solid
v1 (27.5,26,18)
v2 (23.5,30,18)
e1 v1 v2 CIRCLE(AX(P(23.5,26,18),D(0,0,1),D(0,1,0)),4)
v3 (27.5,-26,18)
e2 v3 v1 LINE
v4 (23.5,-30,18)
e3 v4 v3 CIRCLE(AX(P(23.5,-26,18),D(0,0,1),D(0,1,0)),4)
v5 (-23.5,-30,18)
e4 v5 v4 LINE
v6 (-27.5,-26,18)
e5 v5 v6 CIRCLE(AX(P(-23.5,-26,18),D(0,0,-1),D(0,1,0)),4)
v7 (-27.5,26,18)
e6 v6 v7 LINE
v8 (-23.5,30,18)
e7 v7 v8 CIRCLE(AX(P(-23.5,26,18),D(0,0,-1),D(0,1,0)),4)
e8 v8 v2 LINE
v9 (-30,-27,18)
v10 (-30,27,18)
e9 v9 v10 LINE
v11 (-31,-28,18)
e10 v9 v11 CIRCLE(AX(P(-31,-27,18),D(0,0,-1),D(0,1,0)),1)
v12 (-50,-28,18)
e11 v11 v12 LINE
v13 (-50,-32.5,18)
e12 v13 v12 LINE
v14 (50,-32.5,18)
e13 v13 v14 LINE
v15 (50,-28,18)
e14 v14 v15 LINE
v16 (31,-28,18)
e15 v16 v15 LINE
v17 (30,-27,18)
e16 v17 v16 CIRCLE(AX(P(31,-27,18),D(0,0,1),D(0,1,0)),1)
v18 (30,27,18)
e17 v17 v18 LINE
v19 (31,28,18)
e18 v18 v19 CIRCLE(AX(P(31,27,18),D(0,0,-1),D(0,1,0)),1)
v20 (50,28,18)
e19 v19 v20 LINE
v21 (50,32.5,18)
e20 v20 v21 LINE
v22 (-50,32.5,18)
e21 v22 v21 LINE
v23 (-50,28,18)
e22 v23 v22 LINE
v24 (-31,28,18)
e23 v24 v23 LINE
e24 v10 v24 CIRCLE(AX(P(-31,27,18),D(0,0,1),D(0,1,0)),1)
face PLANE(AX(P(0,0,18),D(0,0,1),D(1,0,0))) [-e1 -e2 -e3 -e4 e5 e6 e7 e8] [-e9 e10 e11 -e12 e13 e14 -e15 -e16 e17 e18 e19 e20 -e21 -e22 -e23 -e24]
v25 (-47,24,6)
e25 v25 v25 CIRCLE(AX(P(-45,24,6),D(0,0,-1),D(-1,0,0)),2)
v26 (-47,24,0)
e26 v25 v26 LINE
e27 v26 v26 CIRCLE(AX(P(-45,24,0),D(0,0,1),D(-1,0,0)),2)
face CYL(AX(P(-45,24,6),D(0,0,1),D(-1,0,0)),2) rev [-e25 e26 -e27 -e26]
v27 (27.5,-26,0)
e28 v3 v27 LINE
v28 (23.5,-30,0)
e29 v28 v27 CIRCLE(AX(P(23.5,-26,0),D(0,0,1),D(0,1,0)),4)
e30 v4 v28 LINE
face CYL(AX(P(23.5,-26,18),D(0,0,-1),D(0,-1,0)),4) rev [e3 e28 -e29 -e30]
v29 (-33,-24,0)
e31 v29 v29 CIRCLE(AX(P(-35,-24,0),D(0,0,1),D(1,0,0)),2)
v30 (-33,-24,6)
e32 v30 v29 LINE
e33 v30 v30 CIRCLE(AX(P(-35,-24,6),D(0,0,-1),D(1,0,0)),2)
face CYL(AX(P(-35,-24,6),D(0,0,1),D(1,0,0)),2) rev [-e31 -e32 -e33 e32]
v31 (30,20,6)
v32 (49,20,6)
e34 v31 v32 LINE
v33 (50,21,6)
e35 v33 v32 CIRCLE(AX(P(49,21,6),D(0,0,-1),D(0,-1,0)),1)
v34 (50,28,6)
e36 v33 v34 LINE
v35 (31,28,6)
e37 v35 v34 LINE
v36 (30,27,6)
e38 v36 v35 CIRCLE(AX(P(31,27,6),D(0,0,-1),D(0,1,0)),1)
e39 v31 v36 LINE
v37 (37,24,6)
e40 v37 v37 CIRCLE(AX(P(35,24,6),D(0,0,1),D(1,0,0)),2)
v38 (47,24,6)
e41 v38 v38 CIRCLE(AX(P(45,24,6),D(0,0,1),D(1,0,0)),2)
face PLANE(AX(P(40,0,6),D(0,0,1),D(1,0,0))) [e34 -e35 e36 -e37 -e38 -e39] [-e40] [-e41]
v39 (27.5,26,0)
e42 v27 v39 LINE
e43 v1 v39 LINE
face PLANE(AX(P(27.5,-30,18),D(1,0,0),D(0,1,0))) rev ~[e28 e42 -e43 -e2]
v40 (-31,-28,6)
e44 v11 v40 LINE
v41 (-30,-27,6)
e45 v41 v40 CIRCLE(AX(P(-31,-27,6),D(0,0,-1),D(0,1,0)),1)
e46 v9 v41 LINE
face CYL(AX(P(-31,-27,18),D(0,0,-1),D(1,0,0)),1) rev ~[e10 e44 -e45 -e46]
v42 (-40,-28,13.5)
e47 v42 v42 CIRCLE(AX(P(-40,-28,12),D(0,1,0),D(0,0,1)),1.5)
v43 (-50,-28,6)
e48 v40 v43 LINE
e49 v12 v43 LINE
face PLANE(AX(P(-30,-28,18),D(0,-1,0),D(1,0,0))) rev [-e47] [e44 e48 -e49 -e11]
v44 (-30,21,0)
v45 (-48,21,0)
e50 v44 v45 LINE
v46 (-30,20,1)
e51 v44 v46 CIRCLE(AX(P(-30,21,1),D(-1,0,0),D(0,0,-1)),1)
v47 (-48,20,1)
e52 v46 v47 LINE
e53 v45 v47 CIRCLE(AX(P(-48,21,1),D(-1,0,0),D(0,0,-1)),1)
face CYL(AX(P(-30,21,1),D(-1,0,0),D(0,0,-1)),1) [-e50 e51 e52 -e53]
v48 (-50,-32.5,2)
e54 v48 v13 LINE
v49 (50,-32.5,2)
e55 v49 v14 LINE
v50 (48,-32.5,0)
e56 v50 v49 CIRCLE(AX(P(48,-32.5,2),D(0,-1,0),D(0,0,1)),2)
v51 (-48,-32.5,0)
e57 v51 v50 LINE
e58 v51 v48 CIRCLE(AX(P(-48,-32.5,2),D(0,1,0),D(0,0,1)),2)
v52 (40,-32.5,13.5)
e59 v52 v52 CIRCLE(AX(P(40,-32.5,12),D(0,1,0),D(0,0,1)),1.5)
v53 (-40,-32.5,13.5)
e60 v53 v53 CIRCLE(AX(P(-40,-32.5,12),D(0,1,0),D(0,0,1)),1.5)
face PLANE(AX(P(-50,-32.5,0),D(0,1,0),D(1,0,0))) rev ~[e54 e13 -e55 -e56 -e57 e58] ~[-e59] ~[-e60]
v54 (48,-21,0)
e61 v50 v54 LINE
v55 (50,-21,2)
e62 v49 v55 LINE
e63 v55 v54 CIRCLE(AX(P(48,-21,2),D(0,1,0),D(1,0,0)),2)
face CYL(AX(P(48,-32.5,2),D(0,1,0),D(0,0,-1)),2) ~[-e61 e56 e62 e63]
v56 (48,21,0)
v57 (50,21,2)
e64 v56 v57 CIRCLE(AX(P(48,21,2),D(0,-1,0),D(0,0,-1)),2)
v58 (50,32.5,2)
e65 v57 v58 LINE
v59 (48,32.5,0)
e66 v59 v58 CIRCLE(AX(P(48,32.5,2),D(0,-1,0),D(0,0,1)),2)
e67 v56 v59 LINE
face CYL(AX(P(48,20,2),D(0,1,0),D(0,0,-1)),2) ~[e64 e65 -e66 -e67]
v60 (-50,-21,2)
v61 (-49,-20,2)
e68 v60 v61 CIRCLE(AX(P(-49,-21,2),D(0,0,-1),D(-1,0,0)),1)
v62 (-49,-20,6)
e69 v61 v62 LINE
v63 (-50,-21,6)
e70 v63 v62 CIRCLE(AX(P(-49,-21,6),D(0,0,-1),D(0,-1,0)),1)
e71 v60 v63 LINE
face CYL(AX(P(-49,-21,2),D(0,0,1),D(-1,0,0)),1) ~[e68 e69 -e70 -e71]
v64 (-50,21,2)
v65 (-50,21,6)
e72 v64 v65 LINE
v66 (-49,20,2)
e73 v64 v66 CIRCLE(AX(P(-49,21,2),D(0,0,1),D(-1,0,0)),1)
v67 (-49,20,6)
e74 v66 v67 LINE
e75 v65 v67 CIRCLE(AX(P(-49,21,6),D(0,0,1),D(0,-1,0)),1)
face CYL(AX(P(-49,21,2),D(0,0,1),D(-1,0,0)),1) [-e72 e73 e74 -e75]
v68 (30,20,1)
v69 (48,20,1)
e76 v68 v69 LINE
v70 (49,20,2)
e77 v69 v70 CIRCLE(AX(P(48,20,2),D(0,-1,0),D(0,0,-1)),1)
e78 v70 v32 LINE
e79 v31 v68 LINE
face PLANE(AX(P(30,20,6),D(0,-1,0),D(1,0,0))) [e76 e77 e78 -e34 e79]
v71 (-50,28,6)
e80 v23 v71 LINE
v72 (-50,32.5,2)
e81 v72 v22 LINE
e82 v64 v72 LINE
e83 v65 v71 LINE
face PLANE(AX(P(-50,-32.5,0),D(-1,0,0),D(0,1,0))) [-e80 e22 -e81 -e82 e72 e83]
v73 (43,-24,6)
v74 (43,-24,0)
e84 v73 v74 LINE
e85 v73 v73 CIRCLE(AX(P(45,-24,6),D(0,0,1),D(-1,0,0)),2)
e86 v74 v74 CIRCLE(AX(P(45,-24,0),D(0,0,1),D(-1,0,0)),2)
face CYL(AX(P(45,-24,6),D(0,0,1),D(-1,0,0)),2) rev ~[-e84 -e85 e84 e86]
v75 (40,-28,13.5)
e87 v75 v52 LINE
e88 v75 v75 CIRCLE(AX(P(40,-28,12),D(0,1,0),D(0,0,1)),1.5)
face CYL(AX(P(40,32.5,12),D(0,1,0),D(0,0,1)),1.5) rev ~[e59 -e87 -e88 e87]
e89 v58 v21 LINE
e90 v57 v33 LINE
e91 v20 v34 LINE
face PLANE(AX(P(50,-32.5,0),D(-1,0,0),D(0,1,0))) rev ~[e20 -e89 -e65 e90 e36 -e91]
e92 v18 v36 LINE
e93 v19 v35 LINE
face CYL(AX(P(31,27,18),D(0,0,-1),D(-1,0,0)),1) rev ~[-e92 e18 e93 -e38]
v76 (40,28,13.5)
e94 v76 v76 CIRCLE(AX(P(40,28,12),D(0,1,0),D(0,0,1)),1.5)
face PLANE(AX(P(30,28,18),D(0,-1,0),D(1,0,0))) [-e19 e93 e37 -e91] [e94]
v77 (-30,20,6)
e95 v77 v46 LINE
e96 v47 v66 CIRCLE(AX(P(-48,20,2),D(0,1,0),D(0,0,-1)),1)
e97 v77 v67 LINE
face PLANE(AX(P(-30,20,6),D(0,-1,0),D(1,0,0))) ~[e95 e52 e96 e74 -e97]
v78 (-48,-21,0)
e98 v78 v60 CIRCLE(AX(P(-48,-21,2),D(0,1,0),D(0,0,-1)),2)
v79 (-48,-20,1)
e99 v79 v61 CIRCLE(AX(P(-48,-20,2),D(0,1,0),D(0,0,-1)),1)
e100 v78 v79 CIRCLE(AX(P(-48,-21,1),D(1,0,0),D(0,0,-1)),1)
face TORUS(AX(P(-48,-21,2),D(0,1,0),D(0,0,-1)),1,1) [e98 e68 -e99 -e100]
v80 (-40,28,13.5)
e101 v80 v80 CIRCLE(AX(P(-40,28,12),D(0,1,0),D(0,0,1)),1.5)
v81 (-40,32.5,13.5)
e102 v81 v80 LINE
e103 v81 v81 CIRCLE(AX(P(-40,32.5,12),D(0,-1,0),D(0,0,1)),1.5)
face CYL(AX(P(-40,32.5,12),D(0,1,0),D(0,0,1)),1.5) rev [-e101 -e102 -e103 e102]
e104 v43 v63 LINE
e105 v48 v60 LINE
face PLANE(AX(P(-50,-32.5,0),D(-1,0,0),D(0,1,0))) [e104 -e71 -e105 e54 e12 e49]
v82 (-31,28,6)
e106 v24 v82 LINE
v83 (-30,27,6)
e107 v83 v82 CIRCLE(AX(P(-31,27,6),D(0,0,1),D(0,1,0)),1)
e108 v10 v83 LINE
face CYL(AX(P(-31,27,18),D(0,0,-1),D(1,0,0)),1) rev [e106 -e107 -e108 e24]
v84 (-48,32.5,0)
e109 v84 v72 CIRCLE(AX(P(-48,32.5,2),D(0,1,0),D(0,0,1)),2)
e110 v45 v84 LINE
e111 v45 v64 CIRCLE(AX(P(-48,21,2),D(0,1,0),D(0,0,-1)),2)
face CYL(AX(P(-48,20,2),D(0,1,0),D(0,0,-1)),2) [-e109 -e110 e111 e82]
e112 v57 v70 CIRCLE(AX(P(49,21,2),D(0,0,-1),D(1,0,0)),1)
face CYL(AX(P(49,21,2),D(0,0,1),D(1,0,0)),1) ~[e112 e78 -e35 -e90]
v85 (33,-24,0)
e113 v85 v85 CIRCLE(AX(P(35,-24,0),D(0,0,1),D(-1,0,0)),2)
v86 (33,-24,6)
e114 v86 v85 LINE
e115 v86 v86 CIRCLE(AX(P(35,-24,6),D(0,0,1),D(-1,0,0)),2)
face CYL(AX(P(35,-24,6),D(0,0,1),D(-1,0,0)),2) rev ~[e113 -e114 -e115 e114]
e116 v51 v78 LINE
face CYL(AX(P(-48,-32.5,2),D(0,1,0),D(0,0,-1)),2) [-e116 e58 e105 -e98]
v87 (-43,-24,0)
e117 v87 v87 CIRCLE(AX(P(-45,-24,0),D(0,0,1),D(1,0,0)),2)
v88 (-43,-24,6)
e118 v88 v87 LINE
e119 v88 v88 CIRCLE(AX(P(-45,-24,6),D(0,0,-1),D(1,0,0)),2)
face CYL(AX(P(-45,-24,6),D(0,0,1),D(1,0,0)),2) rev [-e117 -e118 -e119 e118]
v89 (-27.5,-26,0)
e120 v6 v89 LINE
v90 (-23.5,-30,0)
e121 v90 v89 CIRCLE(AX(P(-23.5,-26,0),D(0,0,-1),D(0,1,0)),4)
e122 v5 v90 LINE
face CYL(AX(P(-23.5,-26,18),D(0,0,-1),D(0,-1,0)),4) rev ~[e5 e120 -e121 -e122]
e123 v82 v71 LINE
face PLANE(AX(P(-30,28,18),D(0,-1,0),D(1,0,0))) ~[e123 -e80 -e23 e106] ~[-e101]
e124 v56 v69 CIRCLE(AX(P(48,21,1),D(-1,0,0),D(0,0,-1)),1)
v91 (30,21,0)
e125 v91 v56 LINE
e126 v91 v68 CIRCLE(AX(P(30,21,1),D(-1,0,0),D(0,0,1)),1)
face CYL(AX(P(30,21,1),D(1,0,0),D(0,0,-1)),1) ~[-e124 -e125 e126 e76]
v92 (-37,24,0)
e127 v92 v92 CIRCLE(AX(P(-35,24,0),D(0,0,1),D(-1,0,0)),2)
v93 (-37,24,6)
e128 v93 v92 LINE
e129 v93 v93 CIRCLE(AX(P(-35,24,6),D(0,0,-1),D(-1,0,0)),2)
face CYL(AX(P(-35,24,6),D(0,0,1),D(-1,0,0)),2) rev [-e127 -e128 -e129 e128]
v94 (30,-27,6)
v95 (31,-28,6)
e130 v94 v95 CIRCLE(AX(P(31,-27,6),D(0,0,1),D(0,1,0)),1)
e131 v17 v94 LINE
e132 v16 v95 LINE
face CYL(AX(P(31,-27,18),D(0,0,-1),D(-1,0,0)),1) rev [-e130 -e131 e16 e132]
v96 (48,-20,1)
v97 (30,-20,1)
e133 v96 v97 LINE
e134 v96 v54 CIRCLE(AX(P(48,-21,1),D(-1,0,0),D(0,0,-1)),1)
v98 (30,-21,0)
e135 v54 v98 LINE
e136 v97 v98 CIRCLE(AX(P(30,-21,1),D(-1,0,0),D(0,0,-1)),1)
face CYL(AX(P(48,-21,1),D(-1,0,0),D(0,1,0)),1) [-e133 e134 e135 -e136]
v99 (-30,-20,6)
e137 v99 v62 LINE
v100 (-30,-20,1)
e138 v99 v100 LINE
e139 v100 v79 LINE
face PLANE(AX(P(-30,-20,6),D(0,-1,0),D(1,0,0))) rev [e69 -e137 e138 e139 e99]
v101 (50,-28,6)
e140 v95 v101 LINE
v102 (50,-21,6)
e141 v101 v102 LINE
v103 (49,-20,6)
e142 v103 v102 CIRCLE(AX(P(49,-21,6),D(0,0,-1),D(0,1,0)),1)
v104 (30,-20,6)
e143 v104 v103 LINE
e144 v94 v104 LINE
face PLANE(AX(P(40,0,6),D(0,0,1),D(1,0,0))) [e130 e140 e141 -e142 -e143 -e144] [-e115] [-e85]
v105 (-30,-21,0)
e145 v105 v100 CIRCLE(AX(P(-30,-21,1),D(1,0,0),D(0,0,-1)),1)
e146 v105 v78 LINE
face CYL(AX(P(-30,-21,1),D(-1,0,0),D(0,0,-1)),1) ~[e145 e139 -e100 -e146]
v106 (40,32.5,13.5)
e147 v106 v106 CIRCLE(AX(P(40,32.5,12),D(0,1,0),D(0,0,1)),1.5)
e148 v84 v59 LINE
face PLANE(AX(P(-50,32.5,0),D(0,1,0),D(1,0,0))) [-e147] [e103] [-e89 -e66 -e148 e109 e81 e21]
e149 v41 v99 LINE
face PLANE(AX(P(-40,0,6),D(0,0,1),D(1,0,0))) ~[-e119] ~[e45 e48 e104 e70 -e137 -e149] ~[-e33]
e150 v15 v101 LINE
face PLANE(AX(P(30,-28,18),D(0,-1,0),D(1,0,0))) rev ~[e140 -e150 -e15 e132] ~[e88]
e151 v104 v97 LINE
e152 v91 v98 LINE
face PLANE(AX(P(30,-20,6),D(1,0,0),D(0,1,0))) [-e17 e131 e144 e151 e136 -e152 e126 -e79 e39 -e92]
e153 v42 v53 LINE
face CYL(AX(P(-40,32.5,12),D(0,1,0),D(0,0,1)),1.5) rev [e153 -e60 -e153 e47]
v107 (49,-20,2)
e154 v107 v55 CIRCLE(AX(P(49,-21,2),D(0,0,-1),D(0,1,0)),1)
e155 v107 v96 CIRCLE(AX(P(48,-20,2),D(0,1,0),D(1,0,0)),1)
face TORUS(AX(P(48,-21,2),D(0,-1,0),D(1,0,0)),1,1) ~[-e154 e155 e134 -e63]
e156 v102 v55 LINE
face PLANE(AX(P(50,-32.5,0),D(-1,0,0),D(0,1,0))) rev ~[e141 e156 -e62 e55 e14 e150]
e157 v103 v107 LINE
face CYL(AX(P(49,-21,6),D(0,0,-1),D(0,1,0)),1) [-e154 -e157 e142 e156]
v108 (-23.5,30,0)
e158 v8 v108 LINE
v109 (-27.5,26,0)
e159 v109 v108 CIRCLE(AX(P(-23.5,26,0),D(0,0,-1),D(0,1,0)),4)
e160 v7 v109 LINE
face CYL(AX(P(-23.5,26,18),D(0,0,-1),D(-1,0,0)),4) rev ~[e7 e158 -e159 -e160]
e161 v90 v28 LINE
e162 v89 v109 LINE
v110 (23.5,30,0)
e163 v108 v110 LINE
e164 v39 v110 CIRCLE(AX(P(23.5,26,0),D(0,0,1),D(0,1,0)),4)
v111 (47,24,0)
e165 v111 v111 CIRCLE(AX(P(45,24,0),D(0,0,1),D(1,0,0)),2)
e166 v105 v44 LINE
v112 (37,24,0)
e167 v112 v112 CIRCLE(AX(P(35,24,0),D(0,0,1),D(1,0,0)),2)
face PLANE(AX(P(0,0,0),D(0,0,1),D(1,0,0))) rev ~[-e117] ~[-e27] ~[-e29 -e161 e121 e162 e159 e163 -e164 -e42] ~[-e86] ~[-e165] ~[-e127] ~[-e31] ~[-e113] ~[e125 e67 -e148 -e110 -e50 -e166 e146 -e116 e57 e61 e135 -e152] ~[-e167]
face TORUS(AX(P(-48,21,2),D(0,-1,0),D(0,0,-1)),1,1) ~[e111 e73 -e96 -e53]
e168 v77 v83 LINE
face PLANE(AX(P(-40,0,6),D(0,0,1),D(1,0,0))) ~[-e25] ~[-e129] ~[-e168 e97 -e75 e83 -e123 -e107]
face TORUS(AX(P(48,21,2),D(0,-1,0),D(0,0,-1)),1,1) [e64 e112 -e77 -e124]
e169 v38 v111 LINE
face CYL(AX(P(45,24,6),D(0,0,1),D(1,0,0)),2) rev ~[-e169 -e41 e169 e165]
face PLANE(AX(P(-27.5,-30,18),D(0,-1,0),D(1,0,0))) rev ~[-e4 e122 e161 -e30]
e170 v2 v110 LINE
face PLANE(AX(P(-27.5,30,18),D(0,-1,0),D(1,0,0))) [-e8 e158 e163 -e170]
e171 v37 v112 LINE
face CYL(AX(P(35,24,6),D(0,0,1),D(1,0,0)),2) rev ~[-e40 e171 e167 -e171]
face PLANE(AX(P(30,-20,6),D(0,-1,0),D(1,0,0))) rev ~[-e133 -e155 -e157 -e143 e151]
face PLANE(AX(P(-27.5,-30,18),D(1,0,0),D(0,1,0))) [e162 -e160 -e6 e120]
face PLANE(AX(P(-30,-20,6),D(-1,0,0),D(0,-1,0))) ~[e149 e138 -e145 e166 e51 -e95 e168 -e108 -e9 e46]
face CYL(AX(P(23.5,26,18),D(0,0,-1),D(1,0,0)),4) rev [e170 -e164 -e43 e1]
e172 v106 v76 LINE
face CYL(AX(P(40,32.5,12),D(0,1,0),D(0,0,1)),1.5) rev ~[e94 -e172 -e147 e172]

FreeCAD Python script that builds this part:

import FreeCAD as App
import Part
import Sketcher
Q = App.Units.Quantity


def edges_at(feature, points):
    """Names of the edges that pass closest to the given points."""
    edges = feature.Shape.Edges
    near = lambda p: min(range(len(edges)), key=lambda i: edges[i].distToShape(Part.Vertex(*p))[0])
    return sorted({f"Edge{near(p) + 1}" for p in points})

doc = App.newDocument("Part")
body = doc.addObject("PartDesign::Body", "Body")

# Sketch on XY plane
sketch1 = body.newObject("Sketcher::SketchObject", "Sketch")
sketch1.AttachmentSupport = (doc.getObject("XY_Plane"), [""])
sketch1.MapMode = "FlatFace"
sketch1.addGeometry([
    Part.LineSegment(App.Vector(-50, 32, 0), App.Vector(-50, -32, 0)),
    Part.LineSegment(App.Vector(-50, -32, 0), App.Vector(50, -32, 0)),
    Part.LineSegment(App.Vector(50, -32, 0), App.Vector(50, 32, 0)),
    Part.LineSegment(App.Vector(50, 32, 0), App.Vector(-50, 32, 0)),
], False)
sketch1.addConstraint([
    Sketcher.Constraint("Coincident", 0, 2, 1, 1),
    Sketcher.Constraint("Coincident", 1, 2, 2, 1),
    Sketcher.Constraint("Coincident", 2, 2, 3, 1),
    Sketcher.Constraint("Coincident", 3, 2, 0, 1),
    Sketcher.Constraint("Vertical", 0),
    Sketcher.Constraint("Horizontal", 1),
    Sketcher.Constraint("Vertical", 2),
    Sketcher.Constraint("Horizontal", 3),
    Sketcher.Constraint("Symmetric", 0, 2, 2, 2, -1, 1),
    Sketcher.Constraint("DistanceX", 1, 1, 1, 2, Q("100 mm")),
    Sketcher.Constraint("DistanceY", 0, 2, 0, 1, Q("65 mm")),
])
pad1 = body.newObject("PartDesign::Pad", "Pad")
pad1.Profile = sketch1
pad1.Length = 18

# Sketch on XY plane
sketch2 = body.newObject("Sketcher::SketchObject", "Sketch001")
sketch2.AttachmentSupport = (doc.getObject("XY_Plane"), [""])
sketch2.MapMode = "FlatFace"
sketch2.AttachmentOffset = App.Placement(App.Vector(0, 0, 18), App.Rotation())
sketch2.addGeometry([
    Part.LineSegment(App.Vector(-28, 30, 0), App.Vector(-28, -30, 0)),
    Part.LineSegment(App.Vector(-28, -30, 0), App.Vector(28, -30, 0)),
    Part.LineSegment(App.Vector(28, -30, 0), App.Vector(28, 30, 0)),
    Part.LineSegment(App.Vector(28, 30, 0), App.Vector(-28, 30, 0)),
], False)
sketch2.addConstraint([
    Sketcher.Constraint("Coincident", 0, 2, 1, 1),
    Sketcher.Constraint("Coincident", 1, 2, 2, 1),
    Sketcher.Constraint("Coincident", 2, 2, 3, 1),
    Sketcher.Constraint("Coincident", 3, 2, 0, 1),
    Sketcher.Constraint("Vertical", 0),
    Sketcher.Constraint("Horizontal", 1),
    Sketcher.Constraint("Vertical", 2),
    Sketcher.Constraint("Horizontal", 3),
    Sketcher.Constraint("Symmetric", 0, 2, 2, 2, -1, 1),
    Sketcher.Constraint("DistanceX", 1, 1, 1, 2, Q("55 mm")),
    Sketcher.Constraint("DistanceY", 0, 2, 0, 1, Q("60 mm")),
])
pocket1 = body.newObject("PartDesign::Pocket", "Pocket")
pocket1.Profile = sketch2
pocket1.Type = "ThroughAll"

# Sketch on XY plane
sketch3 = body.newObject("Sketcher::SketchObject", "Sketch002")
sketch3.AttachmentSupport = (doc.getObject("XY_Plane"), [""])
sketch3.MapMode = "FlatFace"
sketch3.AttachmentOffset = App.Placement(App.Vector(0, 0, 18), App.Rotation())
sketch3.addGeometry([
    Part.LineSegment(App.Vector(30, 28, 0), App.Vector(30, -28, 0)),
    Part.LineSegment(App.Vector(30, -28, 0), App.Vector(50, -28, 0)),
    Part.LineSegment(App.Vector(50, -28, 0), App.Vector(50, 28, 0)),
    Part.LineSegment(App.Vector(50, 28, 0), App.Vector(30, 28, 0)),
], False)
sketch3.addConstraint([
    Sketcher.Constraint("Coincident", 0, 2, 1, 1),
    Sketcher.Constraint("Coincident", 1, 2, 2, 1),
    Sketcher.Constraint("Coincident", 2, 2, 3, 1),
    Sketcher.Constraint("Coincident", 3, 2, 0, 1),
    Sketcher.Constraint("Vertical", 0),
    Sketcher.Constraint("Horizontal", 1),
    Sketcher.Constraint("Vertical", 2),
    Sketcher.Constraint("Horizontal", 3),
    Sketcher.Constraint("DistanceX", 1, 1, 1, 2, Q("20 mm")),
    Sketcher.Constraint("DistanceY", 0, 2, 0, 1, Q("56 mm")),
    Sketcher.Constraint("DistanceX", -1, 1, 0, 2, Q("30 mm")),
    Sketcher.Constraint("DistanceY", 0, 2, -1, 1, Q("28 mm")),
])
pocket2 = body.newObject("PartDesign::Pocket", "Pocket001")
pocket2.Profile = sketch3
pocket2.Length = 12

# Sketch on XY plane
sketch4 = body.newObject("Sketcher::SketchObject", "Sketch003")
sketch4.AttachmentSupport = (doc.getObject("XY_Plane"), [""])
sketch4.MapMode = "FlatFace"
sketch4.AttachmentOffset = App.Placement(App.Vector(0, 0, 6), App.Rotation())
sketch4.addGeometry([
    Part.LineSegment(App.Vector(30, 20, 0), App.Vector(30, -20, 0)),
    Part.LineSegment(App.Vector(30, -20, 0), App.Vector(50, -20, 0)),
    Part.LineSegment(App.Vector(50, -20, 0), App.Vector(50, 20, 0)),
    Part.LineSegment(App.Vector(50, 20, 0), App.Vector(30, 20, 0)),
], False)
sketch4.addConstraint([
    Sketcher.Constraint("Coincident", 0, 2, 1, 1),
    Sketcher.Constraint("Coincident", 1, 2, 2, 1),
    Sketcher.Constraint("Coincident", 2, 2, 3, 1),
    Sketcher.Constraint("Coincident", 3, 2, 0, 1),
    Sketcher.Constraint("Vertical", 0),
    Sketcher.Constraint("Horizontal", 1),
    Sketcher.Constraint("Vertical", 2),
    Sketcher.Constraint("Horizontal", 3),
    Sketcher.Constraint("DistanceX", 1, 1, 1, 2, Q("20 mm")),
    Sketcher.Constraint("DistanceY", 0, 2, 0, 1, Q("40 mm")),
    Sketcher.Constraint("DistanceX", -1, 1, 0, 2, Q("30 mm")),
    Sketcher.Constraint("DistanceY", 0, 2, -1, 1, Q("20 mm")),
])
pocket3 = body.newObject("PartDesign::Pocket", "Pocket002")
pocket3.Profile = sketch4
pocket3.Type = "ThroughAll"

# Sketch on XY plane
sketch5 = body.newObject("Sketcher::SketchObject", "Sketch004")
sketch5.AttachmentSupport = (doc.getObject("XY_Plane"), [""])
sketch5.MapMode = "FlatFace"
sketch5.AttachmentOffset = App.Placement(App.Vector(0, 0, 6), App.Rotation())
sketch5.addGeometry([
    Part.Circle(App.Vector(45, 24, 0), App.Vector(0, 0, 1), 2),
    Part.Circle(App.Vector(35, 24, 0), App.Vector(0, 0, 1), 2),
    Part.Circle(App.Vector(35, -24, 0), App.Vector(0, 0, 1), 2),
    Part.Circle(App.Vector(45, -24, 0), App.Vector(0, 0, 1), 2),
], False)
sketch5.addConstraint([
    Sketcher.Constraint("Equal", 0, 1),
    Sketcher.Constraint("Equal", 1, 2),
    Sketcher.Constraint("Equal", 2, 3),
    Sketcher.Constraint("Symmetric", 1, 3, 2, 3, -1),
    Sketcher.Constraint("Symmetric", 0, 3, 3, 3, -1),
    Sketcher.Constraint("Horizontal", 0, 3, 1, 3),
    Sketcher.Constraint("Diameter", 0, Q("4 mm")),
    Sketcher.Constraint("DistanceX", -1, 1, 0, 3, Q("45 mm")),
    Sketcher.Constraint("DistanceY", -1, 1, 0, 3, Q("24 mm")),
    Sketcher.Constraint("DistanceX", -1, 1, 1, 3, Q("35 mm")),
])
pocket4 = body.newObject("PartDesign::Pocket", "Pocket003")
pocket4.Profile = sketch5
pocket4.Type = "ThroughAll"

# Sketch on XZ plane
sketch6 = body.newObject("Sketcher::SketchObject", "Sketch005")
sketch6.AttachmentSupport = (doc.getObject("XZ_Plane"), [""])
sketch6.MapMode = "FlatFace"
sketch6.AttachmentOffset = App.Placement(App.Vector(0, 0, -32.5), App.Rotation())
sketch6.addGeometry(Part.Circle(App.Vector(40, 12, 0), App.Vector(0, 0, 1), 1.5), False)
sketch6.addConstraint([
    Sketcher.Constraint("Diameter", 0, Q("3 mm")),
    Sketcher.Constraint("DistanceX", -1, 1, 0, 3, Q("40 mm")),
    Sketcher.Constraint("DistanceY", -1, 1, 0, 3, Q("12 mm")),
])
pocket5 = body.newObject("PartDesign::Pocket", "Pocket004")
pocket5.Profile = sketch6
pocket5.Type = "ThroughAll"
pocket5.Reversed = True
doc.recompute()

mirrored = body.newObject("PartDesign::Mirrored", "Mirrored")
mirrored.Originals = [pocket2, pocket3, pocket4, pocket5]
mirrored.MirrorPlane = (doc.getObject("YZ_Plane"), [""])
body.Tip = mirrored
doc.recompute()

fillet = body.newObject("PartDesign::Fillet", "Fillet")
fillet.Base = (mirrored, edges_at(mirrored, [
    (27.5, 30, 9),
    (27.5, -30, 9),
    (-27.5, -30, 9),
    (-27.5, 30, 9),
]))
fillet.Radius = 4
doc.recompute()

fillet2 = body.newObject("PartDesign::Fillet", "Fillet001")
fillet2.Base = (fillet, edges_at(fillet, [
    (50, 26.25, 0),
    (-50, 26.25, 0),
    (50, -26.25, 0),
    (-50, -26.25, 0),
]))
fillet2.Radius = 2
doc.recompute()

fillet3 = body.newObject("PartDesign::Fillet", "Fillet002")
fillet3.Base = (fillet2, edges_at(fillet2, [
    (-39, -20, 0),
    (-50, -20, 4),
    (-39, 20, 0),
    (39, 20, 0),
    (-49.414, -20, 0.586),
    (-50, 20, 4),
    (-49.414, 20, 0.586),
    (50, -20, 4),
    (49.414, -20, 0.586),
    (50, 20, 4),
    (49.414, 20, 0.586),
    (30, 28, 12),
    (30, -28, 12),
    (39, -20, 0),
    (-30, 28, 12),
    (-30, -28, 12),
]))
fillet3.Radius = 1

doc.recompute()
